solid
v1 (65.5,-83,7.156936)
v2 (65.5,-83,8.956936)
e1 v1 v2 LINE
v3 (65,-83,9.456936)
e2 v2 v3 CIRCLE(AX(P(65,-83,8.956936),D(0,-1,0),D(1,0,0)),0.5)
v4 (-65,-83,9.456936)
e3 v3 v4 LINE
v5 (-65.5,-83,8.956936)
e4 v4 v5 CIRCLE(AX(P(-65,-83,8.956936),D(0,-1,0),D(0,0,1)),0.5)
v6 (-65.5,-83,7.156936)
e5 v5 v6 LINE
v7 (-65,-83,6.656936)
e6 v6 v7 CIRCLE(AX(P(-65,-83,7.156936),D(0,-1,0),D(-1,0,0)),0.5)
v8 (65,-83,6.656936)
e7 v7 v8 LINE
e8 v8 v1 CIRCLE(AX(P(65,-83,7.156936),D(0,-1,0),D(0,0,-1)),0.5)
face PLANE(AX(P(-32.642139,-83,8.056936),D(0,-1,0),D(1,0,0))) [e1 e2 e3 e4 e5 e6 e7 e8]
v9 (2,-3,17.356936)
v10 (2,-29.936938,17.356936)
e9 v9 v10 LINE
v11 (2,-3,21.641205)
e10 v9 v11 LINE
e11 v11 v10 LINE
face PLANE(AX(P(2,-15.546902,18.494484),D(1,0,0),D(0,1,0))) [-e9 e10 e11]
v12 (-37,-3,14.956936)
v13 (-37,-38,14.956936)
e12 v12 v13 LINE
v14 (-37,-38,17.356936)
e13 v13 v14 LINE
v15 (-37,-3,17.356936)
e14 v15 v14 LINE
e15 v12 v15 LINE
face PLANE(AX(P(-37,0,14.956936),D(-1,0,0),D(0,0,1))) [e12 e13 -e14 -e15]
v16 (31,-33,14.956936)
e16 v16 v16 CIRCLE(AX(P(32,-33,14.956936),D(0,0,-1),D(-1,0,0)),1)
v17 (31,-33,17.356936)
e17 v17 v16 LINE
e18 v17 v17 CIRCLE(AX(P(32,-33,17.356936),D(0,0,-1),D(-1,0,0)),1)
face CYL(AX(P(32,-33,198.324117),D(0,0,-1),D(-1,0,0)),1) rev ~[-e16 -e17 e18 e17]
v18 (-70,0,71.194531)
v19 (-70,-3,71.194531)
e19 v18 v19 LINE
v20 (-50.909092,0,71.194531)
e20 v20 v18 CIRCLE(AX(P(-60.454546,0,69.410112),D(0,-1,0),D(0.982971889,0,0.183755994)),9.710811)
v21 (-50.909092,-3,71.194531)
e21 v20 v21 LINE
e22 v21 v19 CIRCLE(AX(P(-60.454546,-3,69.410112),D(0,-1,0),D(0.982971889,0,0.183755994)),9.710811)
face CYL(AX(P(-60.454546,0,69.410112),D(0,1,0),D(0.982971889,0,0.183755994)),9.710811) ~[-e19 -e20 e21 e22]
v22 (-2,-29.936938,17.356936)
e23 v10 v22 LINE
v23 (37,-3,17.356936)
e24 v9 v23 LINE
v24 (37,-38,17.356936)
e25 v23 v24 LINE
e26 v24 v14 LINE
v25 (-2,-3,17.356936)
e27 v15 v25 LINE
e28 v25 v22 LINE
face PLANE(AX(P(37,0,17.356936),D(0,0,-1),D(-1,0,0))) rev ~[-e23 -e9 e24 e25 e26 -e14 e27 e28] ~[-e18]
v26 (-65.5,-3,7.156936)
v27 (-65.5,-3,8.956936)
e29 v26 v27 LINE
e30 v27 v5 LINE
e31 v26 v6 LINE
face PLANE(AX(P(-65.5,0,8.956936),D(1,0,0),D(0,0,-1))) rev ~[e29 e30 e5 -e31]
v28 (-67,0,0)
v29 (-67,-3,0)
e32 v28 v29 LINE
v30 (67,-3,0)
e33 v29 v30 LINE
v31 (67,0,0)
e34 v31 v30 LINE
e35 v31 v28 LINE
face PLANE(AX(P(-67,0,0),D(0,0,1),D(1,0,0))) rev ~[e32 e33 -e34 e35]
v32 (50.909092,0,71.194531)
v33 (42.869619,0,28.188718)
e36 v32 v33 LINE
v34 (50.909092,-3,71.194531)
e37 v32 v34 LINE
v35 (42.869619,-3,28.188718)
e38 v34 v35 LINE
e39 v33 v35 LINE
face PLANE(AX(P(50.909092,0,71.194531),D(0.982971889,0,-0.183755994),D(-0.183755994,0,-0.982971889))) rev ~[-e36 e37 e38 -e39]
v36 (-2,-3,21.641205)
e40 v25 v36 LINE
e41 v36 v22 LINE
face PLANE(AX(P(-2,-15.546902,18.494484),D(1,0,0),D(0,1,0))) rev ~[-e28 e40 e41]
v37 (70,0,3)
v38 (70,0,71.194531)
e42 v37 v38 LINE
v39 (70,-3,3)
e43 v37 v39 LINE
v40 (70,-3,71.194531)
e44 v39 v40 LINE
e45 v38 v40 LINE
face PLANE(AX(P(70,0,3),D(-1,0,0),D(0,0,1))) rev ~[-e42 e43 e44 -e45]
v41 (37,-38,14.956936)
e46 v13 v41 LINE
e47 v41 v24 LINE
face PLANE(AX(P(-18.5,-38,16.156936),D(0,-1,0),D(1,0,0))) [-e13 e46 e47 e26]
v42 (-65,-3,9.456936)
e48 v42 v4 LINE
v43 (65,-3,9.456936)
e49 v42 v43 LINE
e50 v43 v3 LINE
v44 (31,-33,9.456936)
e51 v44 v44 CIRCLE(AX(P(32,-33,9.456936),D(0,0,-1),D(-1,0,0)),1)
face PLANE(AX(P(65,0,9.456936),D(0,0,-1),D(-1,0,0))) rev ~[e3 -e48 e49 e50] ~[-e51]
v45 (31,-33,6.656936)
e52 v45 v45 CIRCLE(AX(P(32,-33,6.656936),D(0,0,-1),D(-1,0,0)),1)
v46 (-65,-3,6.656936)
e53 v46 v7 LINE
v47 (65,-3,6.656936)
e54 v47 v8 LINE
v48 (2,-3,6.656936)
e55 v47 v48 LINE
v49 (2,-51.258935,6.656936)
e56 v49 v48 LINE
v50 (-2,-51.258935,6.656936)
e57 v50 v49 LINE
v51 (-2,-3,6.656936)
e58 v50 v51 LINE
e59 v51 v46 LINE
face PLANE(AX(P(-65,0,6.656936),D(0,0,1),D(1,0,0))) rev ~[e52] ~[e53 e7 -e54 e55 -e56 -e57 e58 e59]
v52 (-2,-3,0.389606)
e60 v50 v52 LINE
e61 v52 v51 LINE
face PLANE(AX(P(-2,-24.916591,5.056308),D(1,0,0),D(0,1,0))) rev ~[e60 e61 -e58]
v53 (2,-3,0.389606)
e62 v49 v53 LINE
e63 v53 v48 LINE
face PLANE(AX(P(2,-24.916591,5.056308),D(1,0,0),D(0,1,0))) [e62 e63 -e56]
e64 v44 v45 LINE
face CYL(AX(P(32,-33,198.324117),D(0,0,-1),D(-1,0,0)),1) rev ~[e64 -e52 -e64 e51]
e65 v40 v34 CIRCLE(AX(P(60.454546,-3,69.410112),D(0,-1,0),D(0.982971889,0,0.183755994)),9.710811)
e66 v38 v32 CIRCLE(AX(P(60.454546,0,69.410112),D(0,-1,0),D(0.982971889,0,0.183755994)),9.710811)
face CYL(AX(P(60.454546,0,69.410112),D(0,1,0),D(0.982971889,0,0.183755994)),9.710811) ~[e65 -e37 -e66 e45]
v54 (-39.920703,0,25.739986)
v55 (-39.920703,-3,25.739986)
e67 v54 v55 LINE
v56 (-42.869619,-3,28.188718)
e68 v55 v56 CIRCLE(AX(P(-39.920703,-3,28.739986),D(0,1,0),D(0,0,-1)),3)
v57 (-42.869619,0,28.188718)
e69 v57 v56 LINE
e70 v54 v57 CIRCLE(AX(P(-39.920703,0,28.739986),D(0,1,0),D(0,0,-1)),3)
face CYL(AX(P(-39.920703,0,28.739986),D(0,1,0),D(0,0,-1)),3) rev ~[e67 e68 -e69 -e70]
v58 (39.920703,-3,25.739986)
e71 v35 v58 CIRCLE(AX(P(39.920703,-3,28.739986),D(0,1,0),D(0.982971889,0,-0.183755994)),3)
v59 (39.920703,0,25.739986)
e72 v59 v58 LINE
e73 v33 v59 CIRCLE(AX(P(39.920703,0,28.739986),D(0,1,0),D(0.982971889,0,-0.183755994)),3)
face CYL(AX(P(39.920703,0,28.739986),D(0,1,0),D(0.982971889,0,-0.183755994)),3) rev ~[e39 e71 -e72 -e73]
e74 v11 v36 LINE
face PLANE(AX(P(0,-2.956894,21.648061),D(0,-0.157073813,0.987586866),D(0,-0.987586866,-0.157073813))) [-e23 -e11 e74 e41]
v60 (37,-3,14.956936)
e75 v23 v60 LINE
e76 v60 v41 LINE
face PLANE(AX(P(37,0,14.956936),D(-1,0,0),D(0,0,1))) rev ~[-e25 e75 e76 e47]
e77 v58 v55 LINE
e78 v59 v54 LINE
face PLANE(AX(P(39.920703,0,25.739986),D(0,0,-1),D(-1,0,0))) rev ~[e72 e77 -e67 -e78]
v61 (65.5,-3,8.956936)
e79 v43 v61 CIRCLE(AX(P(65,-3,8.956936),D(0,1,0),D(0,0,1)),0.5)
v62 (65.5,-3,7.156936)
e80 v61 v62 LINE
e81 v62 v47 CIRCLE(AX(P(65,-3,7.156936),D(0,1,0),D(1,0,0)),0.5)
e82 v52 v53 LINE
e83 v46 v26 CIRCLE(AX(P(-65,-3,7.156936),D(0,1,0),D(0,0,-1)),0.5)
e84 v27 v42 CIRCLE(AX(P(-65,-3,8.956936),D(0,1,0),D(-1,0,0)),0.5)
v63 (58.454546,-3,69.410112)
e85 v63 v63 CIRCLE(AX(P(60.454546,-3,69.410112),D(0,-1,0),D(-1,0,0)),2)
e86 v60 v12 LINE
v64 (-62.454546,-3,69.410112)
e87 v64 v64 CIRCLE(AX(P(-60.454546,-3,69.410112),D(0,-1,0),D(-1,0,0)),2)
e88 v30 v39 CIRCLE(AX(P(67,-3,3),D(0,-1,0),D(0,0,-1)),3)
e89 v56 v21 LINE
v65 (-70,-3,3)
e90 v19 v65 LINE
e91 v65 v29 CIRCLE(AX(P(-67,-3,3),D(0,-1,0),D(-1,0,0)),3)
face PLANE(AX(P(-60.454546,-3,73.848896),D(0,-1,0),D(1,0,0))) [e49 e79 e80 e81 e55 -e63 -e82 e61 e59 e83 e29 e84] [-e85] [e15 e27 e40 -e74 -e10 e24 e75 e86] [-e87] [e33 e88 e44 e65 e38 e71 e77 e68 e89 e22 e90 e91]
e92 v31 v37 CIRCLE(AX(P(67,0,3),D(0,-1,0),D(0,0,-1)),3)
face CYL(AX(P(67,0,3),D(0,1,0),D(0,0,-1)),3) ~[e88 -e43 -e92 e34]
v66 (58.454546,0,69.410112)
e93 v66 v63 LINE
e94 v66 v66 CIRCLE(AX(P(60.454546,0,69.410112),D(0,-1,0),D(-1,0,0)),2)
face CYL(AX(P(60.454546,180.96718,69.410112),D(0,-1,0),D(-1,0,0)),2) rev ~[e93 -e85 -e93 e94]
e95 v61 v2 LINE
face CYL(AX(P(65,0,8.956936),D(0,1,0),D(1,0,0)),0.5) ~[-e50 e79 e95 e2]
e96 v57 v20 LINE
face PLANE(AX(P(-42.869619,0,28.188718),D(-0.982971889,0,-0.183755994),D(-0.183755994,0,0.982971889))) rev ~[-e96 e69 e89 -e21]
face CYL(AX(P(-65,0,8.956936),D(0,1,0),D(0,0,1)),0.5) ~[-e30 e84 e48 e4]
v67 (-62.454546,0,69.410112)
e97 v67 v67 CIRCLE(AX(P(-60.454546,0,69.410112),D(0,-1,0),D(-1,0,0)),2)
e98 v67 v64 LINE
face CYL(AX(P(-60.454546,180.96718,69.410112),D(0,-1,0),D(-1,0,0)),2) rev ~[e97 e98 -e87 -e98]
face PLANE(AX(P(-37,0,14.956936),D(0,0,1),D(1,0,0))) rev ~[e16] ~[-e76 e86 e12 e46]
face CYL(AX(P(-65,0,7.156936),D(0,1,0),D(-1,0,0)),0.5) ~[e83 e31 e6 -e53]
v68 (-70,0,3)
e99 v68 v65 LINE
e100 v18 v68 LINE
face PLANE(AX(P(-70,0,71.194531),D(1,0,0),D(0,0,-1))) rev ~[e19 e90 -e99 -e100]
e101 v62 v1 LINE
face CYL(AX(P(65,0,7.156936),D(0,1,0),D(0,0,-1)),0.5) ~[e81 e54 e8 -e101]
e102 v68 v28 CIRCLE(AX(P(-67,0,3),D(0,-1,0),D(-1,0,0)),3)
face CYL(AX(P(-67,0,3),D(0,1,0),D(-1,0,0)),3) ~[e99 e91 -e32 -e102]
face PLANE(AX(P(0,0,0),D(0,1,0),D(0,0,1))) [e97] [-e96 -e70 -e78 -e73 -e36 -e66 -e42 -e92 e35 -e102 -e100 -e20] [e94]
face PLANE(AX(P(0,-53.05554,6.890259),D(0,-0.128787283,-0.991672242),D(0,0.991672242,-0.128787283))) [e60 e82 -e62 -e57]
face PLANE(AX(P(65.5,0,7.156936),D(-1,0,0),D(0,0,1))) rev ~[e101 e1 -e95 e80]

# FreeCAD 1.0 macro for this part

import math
import FreeCAD as App
import Part
import Sketcher
from FreeCAD import Vector


def add_polygon(sketch, points):
    """Adds a closed chain of lines whose ends are joined by coincident constraints."""
    first, n = sketch.GeometryCount, len(points)
    for a, b in zip(points, points[1:] + points[:1]):
        sketch.addGeometry(Part.LineSegment(App.Vector(*a, 0), App.Vector(*b, 0)), False)
    for i in range(n):
        sketch.addConstraint(Sketcher.Constraint("Coincident", first + i, 2, first + (i + 1) % n, 1))

doc = App.newDocument("Part")
body = doc.addObject("PartDesign::Body", "Body")

sketch1 = doc.addObject("Sketcher::SketchObject", "Sketch")
body.addObject(sketch1)
sketch1.AttachmentSupport = (doc.XZ_Plane, [""])
sketch1.MapMode = "FlatFace"
sketch1.addGeometry([
    Part.LineSegment(Vector(-65, 6.7, 0), Vector(65, 6.7, 0)),
    Part.ArcOfCircle(Part.Circle(Vector(65, 7.2, 0), Vector(0, 0, 1), 0.5), math.radians(-90), math.radians(0)),
    Part.LineSegment(Vector(65.5, 7.2, 0), Vector(65.5, 9, 0)),
    Part.ArcOfCircle(Part.Circle(Vector(65, 9, 0), Vector(0, 0, 1), 0.5), math.radians(0), math.radians(90)),
    Part.LineSegment(Vector(65, 9.5, 0), Vector(-65, 9.5, 0)),
    Part.ArcOfCircle(Part.Circle(Vector(-65, 9, 0), Vector(0, 0, 1), 0.5), math.radians(90), math.radians(180)),
    Part.LineSegment(Vector(-65.5, 9, 0), Vector(-65.5, 7.2, 0)),
    Part.ArcOfCircle(Part.Circle(Vector(-65, 7.2, 0), Vector(0, 0, 1), 0.5), math.radians(180), math.radians(270)),
], False)
sketch1.addConstraint([
    Sketcher.Constraint("Tangent", 0, 2, 1, 1),
    Sketcher.Constraint("Tangent", 1, 2, 2, 1),
    Sketcher.Constraint("Tangent", 2, 2, 3, 1),
    Sketcher.Constraint("Tangent", 3, 2, 4, 1),
    Sketcher.Constraint("Tangent", 4, 2, 5, 1),
    Sketcher.Constraint("Tangent", 5, 2, 6, 1),
    Sketcher.Constraint("Tangent", 6, 2, 7, 1),
    Sketcher.Constraint("Tangent", 7, 2, 0, 1),
    Sketcher.Constraint("Horizontal", 0),
    Sketcher.Constraint("Vertical", 2),
    Sketcher.Constraint("Horizontal", 4),
    Sketcher.Constraint("Vertical", 6),
    Sketcher.Constraint("Equal", 1, 3),
    Sketcher.Constraint("Equal", 3, 5),
    Sketcher.Constraint("Equal", 5, 7),
    Sketcher.Constraint("Radius", 1, 0.5),
    Sketcher.Constraint("DistanceX", 0, 1, 0, 2, 130.0),
    Sketcher.Constraint("DistanceY", 2, 1, 2, 2, 1.8),
    Sketcher.Constraint("DistanceX", -1, 1, 1, 3, 65.0),
    Sketcher.Constraint("DistanceY", -1, 1, 1, 3, 7.156936),
])
pad1 = doc.addObject("PartDesign::Pad", "Pad")
body.addObject(pad1)
pad1.Profile = sketch1
pad1.Length = 83
body2 = doc.addObject("PartDesign::Body", "Body001")

sketch2 = doc.addObject("Sketcher::SketchObject", "Sketch001")
body2.addObject(sketch2)
sketch2.AttachmentSupport = (doc.getObject("XZ_Plane001"), [""])
sketch2.MapMode = "FlatFace"
add_polygon(sketch2, [(-37, 17.4), (-37, 15), (37, 15), (37, 17.4)])
sketch2.addConstraint([
    Sketcher.Constraint("Vertical", 0),
    Sketcher.Constraint("Horizontal", 1),
    Sketcher.Constraint("Vertical", 2),
    Sketcher.Constraint("Horizontal", 3),
    Sketcher.Constraint("DistanceX", 1, 1, 1, 2, 74.0),
    Sketcher.Constraint("DistanceY", 0, 2, 0, 1, 2.4),
    Sketcher.Constraint("DistanceX", 0, 2, -1, 1, 37.0),
    Sketcher.Constraint("DistanceY", -1, 1, 0, 2, 14.956936),
])
pad2 = doc.addObject("PartDesign::Pad", "Pad001")
body2.addObject(pad2)
pad2.Profile = sketch2
pad2.Length = 38
body.AllowCompound = True
doc.recompute()

boolean = doc.addObject("PartDesign::Boolean", "Boolean")
body.addObject(boolean)
boolean.Type = "Fuse"
boolean.addObjects([body2])

sketch3 = doc.addObject("Sketcher::SketchObject", "Sketch002")
body.addObject(sketch3)
sketch3.AttachmentSupport = (doc.XZ_Plane, [""])
sketch3.MapMode = "FlatFace"
sketch3.addGeometry(Part.ArcOfCircle(Part.Circle(Vector(-60.5, 69.4, 0), Vector(0, 0, 1), 9.7), math.radians(11), math.radians(169)), False)
sketch3.addGeometry(Part.LineSegment(Vector(-70, 71.2, 0), Vector(-70, 3, 0)), False)
sketch3.addGeometry(Part.ArcOfCircle(Part.Circle(Vector(-67, 3, 0), Vector(0, 0, 1), 3), math.radians(180), math.radians(270)), False)
sketch3.addGeometry(Part.LineSegment(Vector(-67, 0, 0), Vector(67, 0, 0)), False)
sketch3.addGeometry(Part.ArcOfCircle(Part.Circle(Vector(67, 3, 0), Vector(0, 0, 1), 3), math.radians(-90), math.radians(0)), False)
sketch3.addGeometry(Part.LineSegment(Vector(70, 3, 0), Vector(70, 71.2, 0)), False)
sketch3.addGeometry(Part.ArcOfCircle(Part.Circle(Vector(60.5, 69.4, 0), Vector(0, 0, 1), 9.7), math.radians(11), math.radians(169)), False)
sketch3.addGeometry(Part.LineSegment(Vector(50.9, 71.2, 0), Vector(42.9, 28.2, 0)), False)
sketch3.addGeometry(Part.ArcOfCircle(Part.Circle(Vector(39.9, 28.7, 0), Vector(0, 0, 1), 3), math.radians(-90), math.radians(-11)), False)
sketch3.addGeometry(Part.LineSegment(Vector(39.9, 25.7, 0), Vector(-39.9, 25.7, 0)), False)
sketch3.addGeometry(Part.ArcOfCircle(Part.Circle(Vector(-39.9, 28.7, 0), Vector(0, 0, 1), 3), math.radians(-169), math.radians(-90)), False)
sketch3.addGeometry(Part.LineSegment(Vector(-42.9, 28.2, 0), Vector(-50.9, 71.2, 0)), False)
sketch3.addGeometry(Part.ArcOfCircle(Part.Circle(Vector(-65, 7.2, 0), Vector(0, 0, 1), 0.5), math.radians(180), math.radians(270)), False)
sketch3.addGeometry(Part.LineSegment(Vector(-65.5, 7.2, 0), Vector(-65.5, 9, 0)), False)
sketch3.addGeometry(Part.ArcOfCircle(Part.Circle(Vector(-65, 9, 0), Vector(0, 0, 1), 0.5), math.radians(90), math.radians(180)), False)
sketch3.addGeometry(Part.LineSegment(Vector(-65, 9.5, 0), Vector(65, 9.5, 0)), False)
sketch3.addGeometry(Part.ArcOfCircle(Part.Circle(Vector(65, 9, 0), Vector(0, 0, 1), 0.5), math.radians(0), math.radians(90)), False)
sketch3.addGeometry(Part.LineSegment(Vector(65.5, 9, 0), Vector(65.5, 7.2, 0)), False)
sketch3.addGeometry(Part.ArcOfCircle(Part.Circle(Vector(65, 7.2, 0), Vector(0, 0, 1), 0.5), math.radians(-90), math.radians(0)), False)
sketch3.addGeometry(Part.LineSegment(Vector(65, 6.7, 0), Vector(-65, 6.7, 0)), False)
add_polygon(sketch3, [(-37, 15), (-37, 17.4), (37, 17.4), (37, 15)])
sketch3.addConstraint([
    Sketcher.Constraint("Coincident", 0, 2, 1, 1),
    Sketcher.Constraint("Tangent", 1, 2, 2, 1),
    Sketcher.Constraint("Tangent", 2, 2, 3, 1),
    Sketcher.Constraint("Tangent", 3, 2, 4, 1),
    Sketcher.Constraint("Tangent", 4, 2, 5, 1),
    Sketcher.Constraint("Coincident", 5, 2, 6, 1),
    Sketcher.Constraint("Tangent", 6, 2, 7, 1),
    Sketcher.Constraint("Tangent", 7, 2, 8, 2),
    Sketcher.Constraint("Tangent", 8, 1, 9, 1),
    Sketcher.Constraint("Tangent", 9, 2, 10, 2),
    Sketcher.Constraint("Tangent", 10, 1, 11, 1),
    Sketcher.Constraint("Tangent", 11, 2, 0, 1),
    Sketcher.Constraint("Tangent", 12, 1, 13, 1),
    Sketcher.Constraint("Tangent", 13, 2, 14, 2),
    Sketcher.Constraint("Tangent", 14, 1, 15, 1),
    Sketcher.Constraint("Tangent", 15, 2, 16, 2),
    Sketcher.Constraint("Tangent", 16, 1, 17, 1),
    Sketcher.Constraint("Tangent", 17, 2, 18, 2),
    Sketcher.Constraint("Tangent", 18, 1, 19, 1),
    Sketcher.Constraint("Tangent", 19, 2, 12, 2),
    Sketcher.Constraint("Vertical", 1),
    Sketcher.Constraint("Horizontal", 3),
    Sketcher.Constraint("Vertical", 5),
    Sketcher.Constraint("Horizontal", 9),
    Sketcher.Constraint("Vertical", 13),
    Sketcher.Constraint("Horizontal", 15),
    Sketcher.Constraint("Vertical", 17),
    Sketcher.Constraint("Horizontal", 19),
    Sketcher.Constraint("Vertical", 20),
    Sketcher.Constraint("Horizontal", 21),
    Sketcher.Constraint("Vertical", 22),
    Sketcher.Constraint("Horizontal", 23),
    Sketcher.Constraint("Equal", 2, 4),
    Sketcher.Constraint("Equal", 0, 6),
    Sketcher.Constraint("Equal", 4, 8),
    Sketcher.Constraint("Equal", 8, 10),
    Sketcher.Constraint("Equal", 12, 14),
    Sketcher.Constraint("Equal", 14, 16),
    Sketcher.Constraint("Equal", 16, 18),
    Sketcher.Constraint("Symmetric", 2, 2, 3, 2, -1, 1),
    Sketcher.Constraint("Symmetric", 0, 3, 6, 3, -2),
    Sketcher.Constraint("Horizontal", 5, 2, 6, 2),
    Sketcher.Constraint("Horizontal", 7, 2, 10, 1),
    Sketcher.Constraint("Radius", 2, 3.0),
    Sketcher.Constraint("Radius", 12, 0.5),
    Sketcher.Constraint("DistanceX", 3, 1, 3, 2, 134.0),
    Sketcher.Constraint("DistanceX", 15, 1, 15, 2, 130.0),
    Sketcher.Constraint("DistanceX", 21, 1, 21, 2, 74.0),
    Sketcher.Constraint("DistanceY", 13, 1, 13, 2, 1.8),
    Sketcher.Constraint("DistanceY", 20, 1, 20, 2, 2.4),
    Sketcher.Constraint("DistanceX", 12, 3, -1, 1, 65.0),
    Sketcher.Constraint("DistanceX", 20, 2, -1, 1, 37.0),
    Sketcher.Constraint("DistanceY", 14, 1, 20, 2, 7.9),
    Sketcher.Constraint("Radius", 0, 9.710811),
    Sketcher.Constraint("DistanceY", 1, 2, 1, 1, 68.194531),
    Sketcher.Constraint("DistanceX", 9, 2, 9, 1, 79.841406),
    Sketcher.Constraint("DistanceY", -1, 1, 0, 3, 69.410112),
    Sketcher.Constraint("DistanceY", 12, 3, 10, 3, 21.58305),
])
pad3 = doc.addObject("PartDesign::Pad", "Pad002")
body.addObject(pad3)
pad3.Profile = sketch3
pad3.Length = 3

sketch4 = doc.addObject("Sketcher::SketchObject", "Sketch003")
body.addObject(sketch4)
sketch4.AttachmentSupport = (doc.XZ_Plane, [""])
sketch4.MapMode = "FlatFace"
sketch4.addGeometry(Part.Circle(Vector(-60.5, 69.4, 0), Vector(0, 0, 1), 2), False)
sketch4.addConstraint([
    Sketcher.Constraint("Diameter", 0, 4.0),
    Sketcher.Constraint("DistanceY", -1, 1, 0, 3, 69.410112),
    Sketcher.Constraint("DistanceX", 0, 3, -1, 1, 60.454546),
])
doc.recompute()
hole = doc.addObject("PartDesign::Hole", "Hole")
body.addObject(hole)
hole.Profile = sketch4
hole.ThreadType = "None"
hole.Diameter = 4
hole.DepthType = "ThroughAll"
hole.Reversed = True

sketch5 = doc.addObject("Sketcher::SketchObject", "Sketch004")
body.addObject(sketch5)
sketch5.AttachmentSupport = (doc.XZ_Plane, [""])
sketch5.MapMode = "FlatFace"
sketch5.addGeometry(Part.Circle(Vector(60.5, 69.4, 0), Vector(0, 0, 1), 2), False)
sketch5.addConstraint([
    Sketcher.Constraint("Diameter", 0, 4.0),
    Sketcher.Constraint("DistanceY", -1, 1, 0, 3, 69.410112),
    Sketcher.Constraint("DistanceX", -1, 1, 0, 3, 60.454546),
])
doc.recompute()
hole2 = doc.addObject("PartDesign::Hole", "Hole001")
body.addObject(hole2)
hole2.Profile = sketch5
hole2.ThreadType = "None"
hole2.Diameter = 4
hole2.DepthType = "ThroughAll"
hole2.Reversed = True

sketch6 = doc.addObject("Sketcher::SketchObject", "Sketch005")
body.addObject(sketch6)
sketch6.AttachmentSupport = (doc.YZ_Plane, [""])
sketch6.MapMode = "FlatFace"
add_polygon(sketch6, [(-53, 7), (0, 0), (0, 7)])
sketch6.addConstraint([
    Sketcher.Constraint("Vertical", 1),
    Sketcher.Constraint("Horizontal", 2),
    Sketcher.Constraint("Coincident", 0, 2, -1, 1),
    Sketcher.Constraint("DistanceX", 2, 2, 2, 1, 53.05554),
    Sketcher.Constraint("DistanceY", 1, 1, 1, 2, 6.890259),
])
pad4 = doc.addObject("PartDesign::Pad", "Pad003")
body.addObject(pad4)
pad4.Profile = sketch6
pad4.Length = 4
pad4.Midplane = True

sketch7 = doc.addObject("Sketcher::SketchObject", "Sketch006")
body.addObject(sketch7)
sketch7.AttachmentSupport = (doc.YZ_Plane, [""])
sketch7.MapMode = "FlatFace"
add_polygon(sketch7, [(-30.1, 17.3), (-3, 17.3), (-3, 21.6)])
sketch7.addConstraint([
    Sketcher.Constraint("Vertical", 1),
    Sketcher.Constraint("Distance", 0, 27.16683),
    Sketcher.Constraint("DistanceY", 1, 1, 1, 2, 4.314106),
    Sketcher.Constraint("DistanceY", -1, 1, 1, 2, 21.648061),
    Sketcher.Constraint("DistanceY", -1, 1, 2, 2, 17.327229),
    Sketcher.Constraint("DistanceX", 0, 2, -1, 1, 2.956894),
])
pad5 = doc.addObject("PartDesign::Pad", "Pad004")
body.addObject(pad5)
pad5.Profile = sketch7
pad5.Length = 4
pad5.Midplane = True

sketch8 = doc.addObject("Sketcher::SketchObject", "Sketch007")
body.addObject(sketch8)
sketch8.AttachmentSupport = (doc.XY_Plane, [""])
sketch8.MapMode = "FlatFace"
sketch8.AttachmentOffset = App.Placement(Vector(0, 0, 17.356936), App.Rotation())
sketch8.addGeometry(Part.Circle(Vector(32, -33, 0), Vector(0, 0, 1), 1), False)
sketch8.addConstraint([
    Sketcher.Constraint("Diameter", 0, 2.0),
    Sketcher.Constraint("DistanceX", -1, 1, 0, 3, 32.0),
    Sketcher.Constraint("DistanceY", 0, 3, -1, 1, 33.0),
])
doc.recompute()
hole3 = doc.addObject("PartDesign::Hole", "Hole002")
body.addObject(hole3)
hole3.Profile = sketch8
hole3.ThreadType = "None"
hole3.Diameter = 2
hole3.DepthType = "ThroughAll"

doc.recompute()
